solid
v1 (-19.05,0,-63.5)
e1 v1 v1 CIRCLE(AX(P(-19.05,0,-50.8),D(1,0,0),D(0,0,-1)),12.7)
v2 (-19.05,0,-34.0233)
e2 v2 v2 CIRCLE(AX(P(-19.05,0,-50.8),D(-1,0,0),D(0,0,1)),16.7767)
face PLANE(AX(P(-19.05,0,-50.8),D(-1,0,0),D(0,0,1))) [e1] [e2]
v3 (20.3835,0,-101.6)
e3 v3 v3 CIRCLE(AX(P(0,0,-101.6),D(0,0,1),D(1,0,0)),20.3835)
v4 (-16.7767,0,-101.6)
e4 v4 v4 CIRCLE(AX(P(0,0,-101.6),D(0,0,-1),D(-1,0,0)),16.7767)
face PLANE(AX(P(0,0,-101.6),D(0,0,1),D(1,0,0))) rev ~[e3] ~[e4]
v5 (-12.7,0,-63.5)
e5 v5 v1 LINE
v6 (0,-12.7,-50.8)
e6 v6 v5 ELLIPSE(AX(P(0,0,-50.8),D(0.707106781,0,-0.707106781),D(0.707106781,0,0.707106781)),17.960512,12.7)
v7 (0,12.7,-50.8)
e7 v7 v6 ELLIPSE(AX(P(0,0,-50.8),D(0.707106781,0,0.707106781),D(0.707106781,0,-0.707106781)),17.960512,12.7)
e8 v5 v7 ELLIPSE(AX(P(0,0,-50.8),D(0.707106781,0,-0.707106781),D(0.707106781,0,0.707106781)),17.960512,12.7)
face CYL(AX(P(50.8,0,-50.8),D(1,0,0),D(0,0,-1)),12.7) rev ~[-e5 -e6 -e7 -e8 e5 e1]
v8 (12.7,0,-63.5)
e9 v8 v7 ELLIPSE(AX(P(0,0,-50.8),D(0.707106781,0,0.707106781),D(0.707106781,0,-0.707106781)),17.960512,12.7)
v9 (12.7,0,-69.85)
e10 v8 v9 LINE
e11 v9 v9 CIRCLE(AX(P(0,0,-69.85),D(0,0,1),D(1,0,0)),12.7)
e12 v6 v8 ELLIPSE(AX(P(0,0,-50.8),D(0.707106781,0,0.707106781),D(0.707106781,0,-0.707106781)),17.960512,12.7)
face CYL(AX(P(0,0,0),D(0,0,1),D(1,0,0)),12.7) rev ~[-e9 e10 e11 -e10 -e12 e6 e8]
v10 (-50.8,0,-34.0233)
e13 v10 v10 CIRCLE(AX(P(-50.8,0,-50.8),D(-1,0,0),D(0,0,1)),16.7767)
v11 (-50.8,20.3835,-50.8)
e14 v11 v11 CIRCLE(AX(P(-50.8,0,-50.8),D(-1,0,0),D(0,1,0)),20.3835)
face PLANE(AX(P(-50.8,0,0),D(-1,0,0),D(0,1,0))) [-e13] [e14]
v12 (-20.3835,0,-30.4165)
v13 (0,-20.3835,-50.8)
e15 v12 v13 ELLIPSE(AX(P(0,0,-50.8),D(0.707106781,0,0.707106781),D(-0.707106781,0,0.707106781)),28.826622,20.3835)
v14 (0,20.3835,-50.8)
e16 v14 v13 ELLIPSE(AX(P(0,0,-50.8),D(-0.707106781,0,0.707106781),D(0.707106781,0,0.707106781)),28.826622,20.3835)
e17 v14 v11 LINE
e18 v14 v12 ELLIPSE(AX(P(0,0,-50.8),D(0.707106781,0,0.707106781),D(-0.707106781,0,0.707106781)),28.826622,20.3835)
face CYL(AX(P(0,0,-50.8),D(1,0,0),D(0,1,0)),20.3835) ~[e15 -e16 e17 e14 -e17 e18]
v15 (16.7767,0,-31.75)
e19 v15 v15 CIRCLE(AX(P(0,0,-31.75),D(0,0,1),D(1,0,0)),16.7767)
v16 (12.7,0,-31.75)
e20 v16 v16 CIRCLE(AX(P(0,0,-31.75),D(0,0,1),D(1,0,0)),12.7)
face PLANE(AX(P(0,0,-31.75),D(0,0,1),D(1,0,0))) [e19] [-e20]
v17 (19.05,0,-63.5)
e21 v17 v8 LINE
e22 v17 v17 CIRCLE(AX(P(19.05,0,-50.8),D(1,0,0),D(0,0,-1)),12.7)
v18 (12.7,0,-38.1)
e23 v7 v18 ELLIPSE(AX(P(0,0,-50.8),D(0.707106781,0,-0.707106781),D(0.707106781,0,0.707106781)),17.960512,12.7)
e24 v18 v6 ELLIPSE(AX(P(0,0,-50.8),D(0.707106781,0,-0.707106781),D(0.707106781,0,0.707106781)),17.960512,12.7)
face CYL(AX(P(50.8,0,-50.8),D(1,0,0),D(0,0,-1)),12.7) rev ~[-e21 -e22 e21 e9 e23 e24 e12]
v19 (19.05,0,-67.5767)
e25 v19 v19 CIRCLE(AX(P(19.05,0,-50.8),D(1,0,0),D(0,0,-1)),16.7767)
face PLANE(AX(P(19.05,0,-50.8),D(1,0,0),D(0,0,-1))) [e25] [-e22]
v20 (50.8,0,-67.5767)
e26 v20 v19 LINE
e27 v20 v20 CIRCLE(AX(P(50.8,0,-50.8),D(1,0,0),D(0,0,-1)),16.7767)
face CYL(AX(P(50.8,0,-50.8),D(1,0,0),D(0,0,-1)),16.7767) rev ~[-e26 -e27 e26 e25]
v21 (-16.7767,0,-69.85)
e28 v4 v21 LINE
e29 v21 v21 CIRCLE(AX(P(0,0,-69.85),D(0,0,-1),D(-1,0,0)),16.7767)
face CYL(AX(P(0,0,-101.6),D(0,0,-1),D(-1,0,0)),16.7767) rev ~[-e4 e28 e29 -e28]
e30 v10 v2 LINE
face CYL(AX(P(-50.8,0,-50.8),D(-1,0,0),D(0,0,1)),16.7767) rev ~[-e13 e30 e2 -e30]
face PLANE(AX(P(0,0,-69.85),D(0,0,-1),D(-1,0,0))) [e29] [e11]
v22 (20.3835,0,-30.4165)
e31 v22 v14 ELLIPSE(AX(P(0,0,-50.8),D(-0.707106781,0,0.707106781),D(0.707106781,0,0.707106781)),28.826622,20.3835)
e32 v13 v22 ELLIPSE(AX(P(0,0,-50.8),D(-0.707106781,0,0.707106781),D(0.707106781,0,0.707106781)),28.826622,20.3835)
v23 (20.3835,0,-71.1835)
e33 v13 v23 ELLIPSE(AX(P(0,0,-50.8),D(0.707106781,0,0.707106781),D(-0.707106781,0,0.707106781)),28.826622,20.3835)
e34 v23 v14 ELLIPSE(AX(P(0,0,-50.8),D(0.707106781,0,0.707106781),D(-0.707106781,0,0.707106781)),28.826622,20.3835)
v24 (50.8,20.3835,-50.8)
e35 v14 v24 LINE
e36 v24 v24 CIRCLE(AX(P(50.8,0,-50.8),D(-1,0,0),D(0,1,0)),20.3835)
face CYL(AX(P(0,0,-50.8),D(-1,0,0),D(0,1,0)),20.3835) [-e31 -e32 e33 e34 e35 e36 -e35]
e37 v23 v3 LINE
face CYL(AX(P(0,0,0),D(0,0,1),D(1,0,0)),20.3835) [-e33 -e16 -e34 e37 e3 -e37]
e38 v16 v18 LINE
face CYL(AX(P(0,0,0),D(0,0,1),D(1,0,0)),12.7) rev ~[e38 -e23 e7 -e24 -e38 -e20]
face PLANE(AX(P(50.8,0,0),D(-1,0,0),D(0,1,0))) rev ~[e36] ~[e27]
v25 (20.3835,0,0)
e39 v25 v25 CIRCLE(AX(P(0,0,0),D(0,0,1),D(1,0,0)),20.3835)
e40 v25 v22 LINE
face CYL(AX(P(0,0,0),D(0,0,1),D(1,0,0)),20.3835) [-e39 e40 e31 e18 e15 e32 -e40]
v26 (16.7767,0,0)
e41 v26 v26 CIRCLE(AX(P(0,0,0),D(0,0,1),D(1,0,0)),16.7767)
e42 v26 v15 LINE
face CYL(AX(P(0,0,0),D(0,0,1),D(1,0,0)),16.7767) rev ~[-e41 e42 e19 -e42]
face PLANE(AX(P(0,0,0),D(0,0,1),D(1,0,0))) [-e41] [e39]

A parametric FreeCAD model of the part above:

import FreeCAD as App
import Part
import Sketcher
Q = App.Units.Quantity

doc = App.newDocument("Part")
params = doc.addObject("Spreadsheet::Sheet", "Params")
for row, (alias, value) in enumerate([
    ("sketch1_diameter", "1.605 in"),
    ("pad1_length", "4 in"),
    ("sketch2_diameter", "1.605 in"),
    ("pad2_length", "4 in"),
    ("sketch3_diameter", "1.321 in"),
    ("pocket1_length", "1.25 in"),
    ("sketch4_diameter", "1.321 in"),
    ("pocket2_length", "1.25 in"),
    ("sketch5_diameter", "1.321 in"),
    ("pocket3_length", "1.25 in"),
    ("sketch6_diameter", "1.321 in"),
    ("pocket4_length", "1.25 in"),
    ("sketch7_diameter", "1 in"),
    ("pocket5_length", "4 in"),
    ("sketch8_diameter", "1 in"),
    ("pocket6_length", "4 in"),
], start=1):
    params.set(f"A{row}", alias)
    params.set(f"B{row}", "=" + value)
    params.setAlias(f"B{row}", alias)

body = doc.addObject("PartDesign::Body", "Body")

sketch1 = body.newObject("Sketcher::SketchObject", "Sketch")
sketch1.AttachmentSupport = (doc.getObject("XY_Plane"), [""])
sketch1.MapMode = "FlatFace"
sketch1.addGeometry(Part.Circle(App.Vector(0, 0, 0), App.Vector(0, 0, 1), 20), False)
sketch1.addConstraint(Sketcher.Constraint("Coincident", 0, 3, -1, 1))
sketch1.addConstraint(Sketcher.Constraint("Diameter", 0, Q("1.605 in")))
sketch1.setExpression("Constraints[1]", "Params.sketch1_diameter")
pad1 = body.newObject("PartDesign::Pad", "Pad")
pad1.Profile = sketch1
pad1.setExpression("Length", "Params.pad1_length")
pad1.Reversed = True

sketch2 = body.newObject("Sketcher::SketchObject", "Sketch001")
sketch2.AttachmentSupport = (doc.getObject("YZ_Plane"), [""])
sketch2.MapMode = "FlatFace"
sketch2.addGeometry(Part.Circle(App.Vector(0, -51, 0), App.Vector(0, 0, 1), 20), False)
sketch2.addConstraint(Sketcher.Constraint("PointOnObject", 0, 3, -2))
sketch2.addConstraint(Sketcher.Constraint("Diameter", 0, Q("1.605 in")))
sketch2.addConstraint(Sketcher.Constraint("DistanceY", 0, 3, -1, 1, Q("2 in")))
sketch2.setExpression("Constraints[1]", "Params.sketch2_diameter")
pad2 = body.newObject("PartDesign::Pad", "Pad001")
pad2.Profile = sketch2
pad2.setExpression("Length", "Params.pad2_length")
pad2.Midplane = True

sketch3 = body.newObject("Sketcher::SketchObject", "Sketch002")
sketch3.AttachmentSupport = (doc.getObject("XY_Plane"), [""])
sketch3.MapMode = "FlatFace"
sketch3.addGeometry(Part.Circle(App.Vector(0, 0, 0), App.Vector(0, 0, 1), 17), False)
sketch3.addConstraint(Sketcher.Constraint("Coincident", 0, 3, -1, 1))
sketch3.addConstraint(Sketcher.Constraint("Diameter", 0, Q("1.321 in")))
sketch3.setExpression("Constraints[1]", "Params.sketch3_diameter")
pocket1 = body.newObject("PartDesign::Pocket", "Pocket")
pocket1.Profile = sketch3
pocket1.setExpression("Length", "Params.pocket1_length")

sketch4 = body.newObject("Sketcher::SketchObject", "Sketch003")
sketch4.AttachmentSupport = (doc.getObject("YZ_Plane"), [""])
sketch4.MapMode = "FlatFace"
sketch4.AttachmentOffset = App.Placement(App.Vector(0, 0, 2 * 25.4), App.Rotation())
sketch4.addGeometry(Part.Circle(App.Vector(0, -51, 0), App.Vector(0, 0, 1), 17), False)
sketch4.addConstraint(Sketcher.Constraint("PointOnObject", 0, 3, -2))
sketch4.addConstraint(Sketcher.Constraint("Diameter", 0, Q("1.321 in")))
sketch4.addConstraint(Sketcher.Constraint("DistanceY", 0, 3, -1, 1, Q("2 in")))
sketch4.setExpression("Constraints[1]", "Params.sketch4_diameter")
pocket2 = body.newObject("PartDesign::Pocket", "Pocket001")
pocket2.Profile = sketch4
pocket2.setExpression("Length", "Params.pocket2_length")

sketch5 = body.newObject("Sketcher::SketchObject", "Sketch004")
sketch5.AttachmentSupport = (doc.getObject("XY_Plane"), [""])
sketch5.MapMode = "FlatFace"
sketch5.AttachmentOffset = App.Placement(App.Vector(0, 0, -4 * 25.4), App.Rotation())
sketch5.addGeometry(Part.Circle(App.Vector(0, 0, 0), App.Vector(0, 0, 1), 17), False)
sketch5.addConstraint(Sketcher.Constraint("Coincident", 0, 3, -1, 1))
sketch5.addConstraint(Sketcher.Constraint("Diameter", 0, Q("1.321 in")))
sketch5.setExpression("Constraints[1]", "Params.sketch5_diameter")
pocket3 = body.newObject("PartDesign::Pocket", "Pocket002")
pocket3.Profile = sketch5
pocket3.setExpression("Length", "Params.pocket3_length")
pocket3.Reversed = True

sketch6 = body.newObject("Sketcher::SketchObject", "Sketch005")
sketch6.AttachmentSupport = (doc.getObject("YZ_Plane"), [""])
sketch6.MapMode = "FlatFace"
sketch6.AttachmentOffset = App.Placement(App.Vector(0, 0, -2 * 25.4), App.Rotation())
sketch6.addGeometry(Part.Circle(App.Vector(0, -51, 0), App.Vector(0, 0, 1), 17), False)
sketch6.addConstraint(Sketcher.Constraint("PointOnObject", 0, 3, -2))
sketch6.addConstraint(Sketcher.Constraint("Diameter", 0, Q("1.321 in")))
sketch6.addConstraint(Sketcher.Constraint("DistanceY", 0, 3, -1, 1, Q("2 in")))
sketch6.setExpression("Constraints[1]", "Params.sketch6_diameter")
pocket4 = body.newObject("PartDesign::Pocket", "Pocket003")
pocket4.Profile = sketch6
pocket4.setExpression("Length", "Params.pocket4_length")
pocket4.Reversed = True

sketch7 = body.newObject("Sketcher::SketchObject", "Sketch006")
sketch7.AttachmentSupport = (doc.getObject("YZ_Plane"), [""])
sketch7.MapMode = "FlatFace"
sketch7.AttachmentOffset = App.Placement(App.Vector(0, 0, 2 * 25.4), App.Rotation())
sketch7.addGeometry(Part.Circle(App.Vector(0, -51, 0), App.Vector(0, 0, 1), 13), False)
sketch7.addConstraint(Sketcher.Constraint("PointOnObject", 0, 3, -2))
sketch7.addConstraint(Sketcher.Constraint("Diameter", 0, Q("1 in")))
sketch7.addConstraint(Sketcher.Constraint("DistanceY", 0, 3, -1, 1, Q("2 in")))
sketch7.setExpression("Constraints[1]", "Params.sketch7_diameter")
pocket5 = body.newObject("PartDesign::Pocket", "Pocket004")
pocket5.Profile = sketch7
pocket5.setExpression("Length", "Params.pocket5_length")

sketch8 = body.newObject("Sketcher::SketchObject", "Sketch007")
sketch8.AttachmentSupport = (doc.getObject("XY_Plane"), [""])
sketch8.MapMode = "FlatFace"
sketch8.addGeometry(Part.Circle(App.Vector(0, 0, 0), App.Vector(0, 0, 1), 13), False)
sketch8.addConstraint(Sketcher.Constraint("Coincident", 0, 3, -1, 1))
sketch8.addConstraint(Sketcher.Constraint("Diameter", 0, Q("1 in")))
sketch8.setExpression("Constraints[1]", "Params.sketch8_diameter")
pocket6 = body.newObject("PartDesign::Pocket", "Pocket005")
pocket6.Profile = sketch8
pocket6.setExpression("Length", "Params.pocket6_length")

doc.recompute()
